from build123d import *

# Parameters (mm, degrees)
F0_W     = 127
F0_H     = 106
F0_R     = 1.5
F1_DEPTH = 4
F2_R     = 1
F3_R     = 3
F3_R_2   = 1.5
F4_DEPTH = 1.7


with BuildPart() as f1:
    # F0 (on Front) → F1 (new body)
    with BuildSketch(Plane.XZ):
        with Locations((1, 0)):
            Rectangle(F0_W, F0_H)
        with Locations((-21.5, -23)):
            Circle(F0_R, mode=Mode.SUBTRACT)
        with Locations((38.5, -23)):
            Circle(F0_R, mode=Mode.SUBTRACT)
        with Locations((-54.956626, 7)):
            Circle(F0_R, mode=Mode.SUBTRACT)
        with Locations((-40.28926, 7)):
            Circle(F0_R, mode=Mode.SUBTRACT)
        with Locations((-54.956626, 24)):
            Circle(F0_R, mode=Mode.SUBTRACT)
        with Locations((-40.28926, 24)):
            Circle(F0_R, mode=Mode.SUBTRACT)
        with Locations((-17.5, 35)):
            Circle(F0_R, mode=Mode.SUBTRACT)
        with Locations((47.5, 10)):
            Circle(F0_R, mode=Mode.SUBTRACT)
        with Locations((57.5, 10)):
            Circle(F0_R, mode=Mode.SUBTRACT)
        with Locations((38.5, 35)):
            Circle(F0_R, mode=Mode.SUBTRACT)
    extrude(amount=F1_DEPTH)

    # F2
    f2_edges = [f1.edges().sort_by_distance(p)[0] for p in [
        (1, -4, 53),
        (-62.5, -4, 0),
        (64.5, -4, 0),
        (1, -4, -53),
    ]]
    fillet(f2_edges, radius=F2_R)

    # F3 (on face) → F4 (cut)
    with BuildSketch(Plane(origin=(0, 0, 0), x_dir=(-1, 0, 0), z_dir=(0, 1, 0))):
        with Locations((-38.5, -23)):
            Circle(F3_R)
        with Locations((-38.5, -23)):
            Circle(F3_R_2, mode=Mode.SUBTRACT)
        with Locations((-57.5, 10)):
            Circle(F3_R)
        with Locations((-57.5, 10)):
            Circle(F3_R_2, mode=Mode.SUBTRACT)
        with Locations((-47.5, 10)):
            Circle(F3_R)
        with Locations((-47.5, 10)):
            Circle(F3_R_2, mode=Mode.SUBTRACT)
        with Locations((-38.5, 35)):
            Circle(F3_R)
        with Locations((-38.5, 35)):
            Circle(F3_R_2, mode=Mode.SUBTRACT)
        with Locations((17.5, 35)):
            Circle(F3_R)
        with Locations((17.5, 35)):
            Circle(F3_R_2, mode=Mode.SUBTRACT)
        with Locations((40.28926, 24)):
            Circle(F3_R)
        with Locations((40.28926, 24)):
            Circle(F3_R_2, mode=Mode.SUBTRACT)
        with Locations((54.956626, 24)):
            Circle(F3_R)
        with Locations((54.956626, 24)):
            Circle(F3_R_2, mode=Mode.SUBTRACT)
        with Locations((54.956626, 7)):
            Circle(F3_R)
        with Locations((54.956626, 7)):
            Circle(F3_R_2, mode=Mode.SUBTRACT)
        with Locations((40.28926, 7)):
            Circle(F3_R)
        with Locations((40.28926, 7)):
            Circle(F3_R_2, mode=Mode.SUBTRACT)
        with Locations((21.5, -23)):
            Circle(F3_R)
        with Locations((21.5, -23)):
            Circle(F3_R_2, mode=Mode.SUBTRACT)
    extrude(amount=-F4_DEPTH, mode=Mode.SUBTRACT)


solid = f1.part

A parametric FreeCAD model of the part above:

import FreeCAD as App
import Part
import Sketcher

V = App.Vector
Q = App.Units.Quantity


def edges_at(feature, points):
    """Names of the edges that pass closest to the given points."""
    edges = feature.Shape.Edges
    near = lambda p: min(range(len(edges)), key=lambda i: edges[i].distToShape(Part.Vertex(*p))[0])
    return sorted({f"Edge{near(p) + 1}" for p in points})

doc = App.newDocument("Part")
body = doc.addObject("PartDesign::Body", "Body")

sketch1 = doc.addObject("Sketcher::SketchObject", "Sketch")
body.addObject(sketch1)
sketch1.AttachmentSupport = (doc.XZ_Plane, [""])
sketch1.MapMode = "FlatFace"
sketch1.addGeometry([
    Part.LineSegment(V(-62.5, 53, 0), V(-62.5, -53, 0)),
    Part.LineSegment(V(-62.5, -53, 0), V(64.5, -53, 0)),
    Part.LineSegment(V(64.5, -53, 0), V(64.5, 53, 0)),
    Part.LineSegment(V(64.5, 53, 0), V(-62.5, 53, 0)),
    Part.Circle(V(-21.5, -23, 0), V(0, 0, 1), 1.5),
    Part.Circle(V(38.5, -23, 0), V(0, 0, 1), 1.5),
    Part.Circle(V(-54.956626, 7, 0), V(0, 0, 1), 1.5),
    Part.Circle(V(-40.28926, 7, 0), V(0, 0, 1), 1.5),
    Part.Circle(V(-54.956626, 24, 0), V(0, 0, 1), 1.5),
    Part.Circle(V(-40.28926, 24, 0), V(0, 0, 1), 1.5),
    Part.Circle(V(-17.5, 35, 0), V(0, 0, 1), 1.5),
    Part.Circle(V(47.5, 10, 0), V(0, 0, 1), 1.5),
    Part.Circle(V(57.5, 10, 0), V(0, 0, 1), 1.5),
    Part.Circle(V(38.5, 35, 0), V(0, 0, 1), 1.5),
], False)
sketch1.addConstraint([
    Sketcher.Constraint("Coincident", 0, 2, 1, 1),
    Sketcher.Constraint("Coincident", 1, 2, 2, 1),
    Sketcher.Constraint("Coincident", 2, 2, 3, 1),
    Sketcher.Constraint("Coincident", 3, 2, 0, 1),
    Sketcher.Constraint("Vertical", 0),
    Sketcher.Constraint("Horizontal", 1),
    Sketcher.Constraint("Vertical", 2),
    Sketcher.Constraint("Horizontal", 3),
    Sketcher.Constraint("Equal", 4, 5),
    Sketcher.Constraint("Equal", 5, 6),
    Sketcher.Constraint("Equal", 6, 7),
    Sketcher.Constraint("Equal", 7, 8),
    Sketcher.Constraint("Equal", 8, 9),
    Sketcher.Constraint("Equal", 9, 10),
    Sketcher.Constraint("Equal", 10, 11),
    Sketcher.Constraint("Equal", 11, 12),
    Sketcher.Constraint("Equal", 12, 13),
    Sketcher.Constraint("Horizontal", 4, 3, 5, 3),
    Sketcher.Constraint("Horizontal", 6, 3, 7, 3),
    Sketcher.Constraint("Horizontal", 8, 3, 9, 3),
    Sketcher.Constraint("Horizontal", 11, 3, 12, 3),
    Sketcher.Constraint("Horizontal", 10, 3, 13, 3),
    Sketcher.Constraint("Vertical", 6, 3, 8, 3),
    Sketcher.Constraint("Vertical", 7, 3, 9, 3),
    Sketcher.Constraint("Vertical", 5, 3, 13, 3),
    Sketcher.Constraint("Diameter", 4, Q("3 mm")),
    Sketcher.Constraint("DistanceX", 1, 1, 1, 2, Q("127 mm")),
    Sketcher.Constraint("DistanceY", 0, 2, 0, 1, Q("106 mm")),
    Sketcher.Constraint("DistanceY", 4, 3, -1, 1, Q("23 mm")),
    Sketcher.Constraint("DistanceY", -1, 1, 6, 3, Q("7 mm")),
    Sketcher.Constraint("DistanceY", -1, 1, 8, 3, Q("24 mm")),
    Sketcher.Constraint("DistanceY", -1, 1, 10, 3, Q("35 mm")),
    Sketcher.Constraint("DistanceY", -1, 1, 11, 3, Q("10 mm")),
    Sketcher.Constraint("DistanceY", 0, 2, -1, 1, Q("53 mm")),
    Sketcher.Constraint("DistanceX", 4, 3, 5, 3, Q("60 mm")),
    Sketcher.Constraint("DistanceX", 4, 3, 10, 3, Q("4 mm")),
    Sketcher.Constraint("DistanceX", 5, 3, 11, 3, Q("9 mm")),
    Sketcher.Constraint("DistanceX", 11, 3, 12, 3, Q("10 mm")),
    Sketcher.Constraint("DistanceX", 0, 2, 4, 3, Q("41 mm")),
    Sketcher.Constraint("DistanceX", 4, 3, -1, 1, Q("21.5 mm")),
    Sketcher.Constraint("DistanceX", 7, 3, -1, 1, Q("40.28926 mm")),
    Sketcher.Constraint("DistanceX", 6, 3, -1, 1, Q("54.956626 mm")),
])
pad1 = doc.addObject("PartDesign::Pad", "Pad")
body.addObject(pad1)
pad1.Profile = sketch1
pad1.Length = 4
doc.recompute()

fillet = doc.addObject("PartDesign::Fillet", "Fillet")
body.addObject(fillet)
fillet.Base = (pad1, edges_at(pad1, [
    (1, -4, 53),
    (-62.5, -4, 0),
    (64.5, -4, 0),
    (1, -4, -53),
]))
fillet.Radius = 1

sketch2 = doc.addObject("Sketcher::SketchObject", "Sketch001")
body.addObject(sketch2)
sketch2.AttachmentSupport = (doc.XZ_Plane, [""])
sketch2.MapMode = "FlatFace"
sketch2.addGeometry([
    Part.Circle(V(38.5, -23, 0), V(0, 0, 1), 3),
    Part.Circle(V(38.5, -23, 0), V(0, 0, 1), 1.5),
    Part.Circle(V(57.5, 10, 0), V(0, 0, 1), 3),
    Part.Circle(V(57.5, 10, 0), V(0, 0, 1), 1.5),
    Part.Circle(V(47.5, 10, 0), V(0, 0, 1), 3),
    Part.Circle(V(47.5, 10, 0), V(0, 0, 1), 1.5),
    Part.Circle(V(38.5, 35, 0), V(0, 0, 1), 3),
    Part.Circle(V(38.5, 35, 0), V(0, 0, 1), 1.5),
    Part.Circle(V(-17.5, 35, 0), V(0, 0, 1), 3),
    Part.Circle(V(-17.5, 35, 0), V(0, 0, 1), 1.5),
    Part.Circle(V(-40.28926, 24, 0), V(0, 0, 1), 3),
    Part.Circle(V(-40.28926, 24, 0), V(0, 0, 1), 1.5),
    Part.Circle(V(-54.956626, 24, 0), V(0, 0, 1), 3),
    Part.Circle(V(-54.956626, 24, 0), V(0, 0, 1), 1.5),
    Part.Circle(V(-54.956626, 7, 0), V(0, 0, 1), 3),
    Part.Circle(V(-54.956626, 7, 0), V(0, 0, 1), 1.5),
    Part.Circle(V(-40.28926, 7, 0), V(0, 0, 1), 3),
    Part.Circle(V(-40.28926, 7, 0), V(0, 0, 1), 1.5),
    Part.Circle(V(-21.5, -23, 0), V(0, 0, 1), 3),
    Part.Circle(V(-21.5, -23, 0), V(0, 0, 1), 1.5),
], False)
sketch2.addConstraint([
    Sketcher.Constraint("Coincident", 1, 3, 0, 3),
    Sketcher.Constraint("Coincident", 3, 3, 2, 3),
    Sketcher.Constraint("Coincident", 5, 3, 4, 3),
    Sketcher.Constraint("Coincident", 7, 3, 6, 3),
    Sketcher.Constraint("Coincident", 9, 3, 8, 3),
    Sketcher.Constraint("Coincident", 11, 3, 10, 3),
    Sketcher.Constraint("Coincident", 13, 3, 12, 3),
    Sketcher.Constraint("Coincident", 15, 3, 14, 3),
    Sketcher.Constraint("Coincident", 17, 3, 16, 3),
    Sketcher.Constraint("Coincident", 19, 3, 18, 3),
    Sketcher.Constraint("Equal", 0, 2),
    Sketcher.Constraint("Equal", 1, 3),
    Sketcher.Constraint("Equal", 2, 4),
    Sketcher.Constraint("Equal", 3, 5),
    Sketcher.Constraint("Equal", 4, 6),
    Sketcher.Constraint("Equal", 5, 7),
    Sketcher.Constraint("Equal", 6, 8),
    Sketcher.Constraint("Equal", 7, 9),
    Sketcher.Constraint("Equal", 8, 10),
    Sketcher.Constraint("Equal", 9, 11),
    Sketcher.Constraint("Equal", 10, 12),
    Sketcher.Constraint("Equal", 11, 13),
    Sketcher.Constraint("Equal", 12, 14),
    Sketcher.Constraint("Equal", 13, 15),
    Sketcher.Constraint("Equal", 14, 16),
    Sketcher.Constraint("Equal", 15, 17),
    Sketcher.Constraint("Equal", 16, 18),
    Sketcher.Constraint("Equal", 17, 19),
    Sketcher.Constraint("Horizontal", 3, 3, 4, 3),
    Sketcher.Constraint("Horizontal", 7, 3, 8, 3),
    Sketcher.Constraint("Horizontal", 11, 3, 12, 3),
    Sketcher.Constraint("Horizontal", 15, 3, 16, 3),
    Sketcher.Constraint("Horizontal", 1, 3, 18, 3),
    Sketcher.Constraint("Vertical", 1, 3, 6, 3),
    Sketcher.Constraint("Vertical", 13, 3, 14, 3),
    Sketcher.Constraint("Vertical", 11, 3, 16, 3),
    Sketcher.Constraint("Diameter", 0, Q("6 mm")),
    Sketcher.Constraint("Diameter", 1, Q("3 mm")),
    Sketcher.Constraint("DistanceY", 0, 3, -1, 1, Q("23 mm")),
    Sketcher.Constraint("DistanceY", -1, 1, 2, 3, Q("10 mm")),
    Sketcher.Constraint("DistanceY", -1, 1, 6, 3, Q("35 mm")),
    Sketcher.Constraint("DistanceY", -1, 1, 10, 3, Q("24 mm")),
    Sketcher.Constraint("DistanceY", -1, 1, 14, 3, Q("7 mm")),
    Sketcher.Constraint("DistanceX", 0, 3, 2, 3, Q("19 mm")),
    Sketcher.Constraint("DistanceX", 4, 3, 2, 3, Q("10 mm")),
    Sketcher.Constraint("DistanceX", 8, 3, 6, 3, Q("56 mm")),
    Sketcher.Constraint("DistanceX", -1, 1, 0, 3, Q("38.5 mm")),
    Sketcher.Constraint("DistanceX", 18, 3, -1, 1, Q("21.5 mm")),
    Sketcher.Constraint("DistanceX", 10, 3, -1, 1, Q("40.28926 mm")),
    Sketcher.Constraint("DistanceX", 12, 3, -1, 1, Q("54.956626 mm")),
])
pocket1 = doc.addObject("PartDesign::Pocket", "Pocket")
body.addObject(pocket1)
pocket1.Profile = sketch2
pocket1.Length = 1.7
pocket1.Reversed = True

doc.recompute()
